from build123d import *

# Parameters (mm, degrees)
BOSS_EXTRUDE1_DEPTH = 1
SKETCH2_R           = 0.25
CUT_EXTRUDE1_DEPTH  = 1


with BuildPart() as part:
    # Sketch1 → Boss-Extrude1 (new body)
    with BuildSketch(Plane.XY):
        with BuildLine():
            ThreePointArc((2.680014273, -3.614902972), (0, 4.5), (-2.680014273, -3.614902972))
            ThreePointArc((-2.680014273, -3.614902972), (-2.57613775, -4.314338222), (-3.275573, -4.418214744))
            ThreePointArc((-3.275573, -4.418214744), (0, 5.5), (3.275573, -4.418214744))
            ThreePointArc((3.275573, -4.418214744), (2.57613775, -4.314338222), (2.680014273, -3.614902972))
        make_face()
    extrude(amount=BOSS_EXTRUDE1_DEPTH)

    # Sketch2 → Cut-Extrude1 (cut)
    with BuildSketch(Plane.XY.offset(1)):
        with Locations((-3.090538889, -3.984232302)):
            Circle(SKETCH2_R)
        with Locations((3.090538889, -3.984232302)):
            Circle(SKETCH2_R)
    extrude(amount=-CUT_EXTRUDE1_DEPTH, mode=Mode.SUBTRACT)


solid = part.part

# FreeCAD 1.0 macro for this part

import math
import FreeCAD as App
import Part
import Sketcher

V = App.Vector

doc = App.newDocument("Part")
params = doc.addObject("Spreadsheet::Sheet", "Params")
for row, (alias, value) in enumerate([
    ("sketch1_radius", "4.5 mm"),
    ("sketch1_radius2", "0.5 mm"),
    ("pad1_length", "1 mm"),
    ("sketch2_diameter", "0.5 mm"),
    ("pocket1_length", "1 mm"),
], start=1):
    params.set(f"A{row}", alias)
    params.set(f"B{row}", "=" + value)
    params.setAlias(f"B{row}", alias)

body = doc.addObject("PartDesign::Body", "Body")

# Sketch on XY plane
sketch1 = body.newObject("Sketcher::SketchObject", "Sketch")
sketch1.AttachmentSupport = (doc.getObject("XY_Plane"), [""])
sketch1.MapMode = "FlatFace"
sketch1.addGeometry([
    Part.ArcOfCircle(Part.Circle(V(0, 0, 0), V(0, 0, 1), 4.5), math.radians(-53.447527), math.radians(233.447527)),
    Part.ArcOfCircle(Part.Circle(V(2.977794, -4.016559, 0), V(0, 0, 1), 0.5), math.radians(126.552473), math.radians(306.552473)),
    Part.ArcOfCircle(Part.Circle(V(0, 0, 0), V(0, 0, 1), 5.5), math.radians(-53.447527), math.radians(233.447527)),
    Part.ArcOfCircle(Part.Circle(V(-2.977794, -4.016559, 0), V(0, 0, 1), 0.5), math.radians(-126.552473), math.radians(53.447527)),
], False)
sketch1.addConstraint([
    Sketcher.Constraint("Tangent", 0, 1, 1, 1),
    Sketcher.Constraint("Tangent", 1, 2, 2, 1),
    Sketcher.Constraint("Tangent", 2, 2, 3, 1),
    Sketcher.Constraint("Tangent", 3, 2, 0, 2),
    Sketcher.Constraint("Coincident", 0, 3, -1, 1),
    Sketcher.Constraint("Coincident", 2, 3, -1, 1),
    Sketcher.Constraint("Horizontal", 1, 3, 3, 3),
    Sketcher.Constraint("Radius", 0, 4.5),
    Sketcher.Constraint("Radius", 1, 0.5),
    Sketcher.Constraint("DistanceY", 1, 3, -1, 1, 4.016559),
])
sketch1.setExpression("Constraints[7]", "Params.sketch1_radius")
sketch1.setExpression("Constraints[8]", "Params.sketch1_radius2")
pad1 = body.newObject("PartDesign::Pad", "Pad")
pad1.Profile = sketch1
pad1.setExpression("Length", "Params.pad1_length")

# Sketch on XY plane
sketch2 = body.newObject("Sketcher::SketchObject", "Sketch001")
sketch2.AttachmentSupport = (doc.getObject("XY_Plane"), [""])
sketch2.MapMode = "FlatFace"
sketch2.AttachmentOffset = App.Placement(V(0, 0, 1), App.Rotation())
sketch2.addGeometry([
    Part.Circle(V(-3.090539, -3.984232, 0), V(0, 0, 1), 0.25),
    Part.Circle(V(3.090539, -3.984232, 0), V(0, 0, 1), 0.25),
], False)
sketch2.addConstraint([
    Sketcher.Constraint("Equal", 0, 1),
    Sketcher.Constraint("Symmetric", 0, 3, 1, 3, -2),
    Sketcher.Constraint("Diameter", 0, 0.5),
    Sketcher.Constraint("DistanceX", 0, 3, -1, 1, 3.090539),
    Sketcher.Constraint("DistanceY", 0, 3, -1, 1, 3.984232),
])
sketch2.setExpression("Constraints[2]", "Params.sketch2_diameter")
pocket1 = body.newObject("PartDesign::Pocket", "Pocket")
pocket1.Profile = sketch2
pocket1.setExpression("Length", "Params.pocket1_length")

doc.recompute()
